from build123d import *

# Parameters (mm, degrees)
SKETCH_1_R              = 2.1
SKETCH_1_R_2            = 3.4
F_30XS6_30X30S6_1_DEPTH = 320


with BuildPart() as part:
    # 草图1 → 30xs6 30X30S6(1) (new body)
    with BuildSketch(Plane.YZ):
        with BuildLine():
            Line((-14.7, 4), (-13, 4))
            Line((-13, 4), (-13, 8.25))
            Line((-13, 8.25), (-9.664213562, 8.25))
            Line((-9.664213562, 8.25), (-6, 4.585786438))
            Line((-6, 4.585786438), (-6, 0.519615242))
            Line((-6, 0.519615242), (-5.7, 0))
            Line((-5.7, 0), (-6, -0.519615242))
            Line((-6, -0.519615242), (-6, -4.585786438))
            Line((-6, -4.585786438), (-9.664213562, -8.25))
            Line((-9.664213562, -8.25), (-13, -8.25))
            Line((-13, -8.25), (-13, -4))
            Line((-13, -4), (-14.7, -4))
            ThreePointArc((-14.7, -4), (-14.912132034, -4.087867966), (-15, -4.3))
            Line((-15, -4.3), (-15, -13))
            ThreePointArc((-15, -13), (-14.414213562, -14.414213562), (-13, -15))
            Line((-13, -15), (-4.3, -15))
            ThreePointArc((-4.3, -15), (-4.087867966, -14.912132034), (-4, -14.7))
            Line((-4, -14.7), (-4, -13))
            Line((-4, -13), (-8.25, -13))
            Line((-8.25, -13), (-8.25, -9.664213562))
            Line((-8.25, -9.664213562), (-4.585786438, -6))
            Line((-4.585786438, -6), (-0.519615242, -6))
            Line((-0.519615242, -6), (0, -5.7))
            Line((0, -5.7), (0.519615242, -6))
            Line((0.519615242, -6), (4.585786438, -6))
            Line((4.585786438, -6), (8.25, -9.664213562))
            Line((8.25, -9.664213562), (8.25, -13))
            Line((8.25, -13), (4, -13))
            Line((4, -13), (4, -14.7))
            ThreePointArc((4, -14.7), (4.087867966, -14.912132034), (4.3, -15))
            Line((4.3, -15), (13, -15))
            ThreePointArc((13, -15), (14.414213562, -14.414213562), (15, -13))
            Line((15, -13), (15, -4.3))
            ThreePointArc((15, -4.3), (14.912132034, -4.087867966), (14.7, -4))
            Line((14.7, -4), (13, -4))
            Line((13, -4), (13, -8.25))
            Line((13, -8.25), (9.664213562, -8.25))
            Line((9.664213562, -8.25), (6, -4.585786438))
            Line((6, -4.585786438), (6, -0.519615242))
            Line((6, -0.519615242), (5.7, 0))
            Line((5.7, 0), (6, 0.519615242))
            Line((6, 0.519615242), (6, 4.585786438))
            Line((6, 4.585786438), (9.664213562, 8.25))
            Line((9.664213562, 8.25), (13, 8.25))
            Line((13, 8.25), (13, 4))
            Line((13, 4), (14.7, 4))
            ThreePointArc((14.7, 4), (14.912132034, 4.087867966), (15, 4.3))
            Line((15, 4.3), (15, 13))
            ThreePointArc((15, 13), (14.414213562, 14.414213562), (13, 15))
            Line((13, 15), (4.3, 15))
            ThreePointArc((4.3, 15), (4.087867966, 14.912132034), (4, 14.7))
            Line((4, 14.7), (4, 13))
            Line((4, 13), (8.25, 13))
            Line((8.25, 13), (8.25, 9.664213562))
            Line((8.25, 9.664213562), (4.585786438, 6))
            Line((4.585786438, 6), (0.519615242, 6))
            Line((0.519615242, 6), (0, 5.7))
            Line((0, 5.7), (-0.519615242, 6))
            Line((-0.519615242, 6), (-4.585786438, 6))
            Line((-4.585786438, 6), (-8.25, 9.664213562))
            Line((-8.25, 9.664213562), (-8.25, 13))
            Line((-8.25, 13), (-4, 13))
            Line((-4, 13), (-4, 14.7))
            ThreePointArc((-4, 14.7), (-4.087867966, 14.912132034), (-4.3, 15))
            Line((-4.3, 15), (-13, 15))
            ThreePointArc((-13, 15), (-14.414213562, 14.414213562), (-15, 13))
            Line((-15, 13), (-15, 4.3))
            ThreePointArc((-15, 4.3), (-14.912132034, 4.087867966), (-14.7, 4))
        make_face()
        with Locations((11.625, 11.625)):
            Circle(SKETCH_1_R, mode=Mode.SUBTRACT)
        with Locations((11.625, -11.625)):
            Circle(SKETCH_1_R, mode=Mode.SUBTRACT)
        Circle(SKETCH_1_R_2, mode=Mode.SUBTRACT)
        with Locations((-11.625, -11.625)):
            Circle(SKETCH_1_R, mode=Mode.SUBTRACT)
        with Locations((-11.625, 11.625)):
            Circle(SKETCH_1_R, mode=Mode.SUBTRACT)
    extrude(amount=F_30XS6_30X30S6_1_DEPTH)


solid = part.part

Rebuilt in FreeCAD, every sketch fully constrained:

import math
import FreeCAD as App
import Part
import Sketcher
from FreeCAD import Vector
Q = App.Units.Quantity

doc = App.newDocument("Part")
body = doc.addObject("PartDesign::Body", "Body")

# Sketch on YZ plane
sketch1 = body.newObject("Sketcher::SketchObject", "Sketch")
sketch1.AttachmentSupport = (doc.getObject("YZ_Plane"), [""])
sketch1.MapMode = "FlatFace"
sketch1.addGeometry([
    Part.LineSegment(Vector(-14.7, 4, 0), Vector(-13, 4, 0)),  # 0
    Part.LineSegment(Vector(-13, 4, 0), Vector(-13, 8.25, 0)),  # 1
    Part.LineSegment(Vector(-13, 8.25, 0), Vector(-9.66, 8.25, 0)),  # 2
    Part.LineSegment(Vector(-9.66, 8.25, 0), Vector(-6, 4.59, 0)),  # 3
    Part.LineSegment(Vector(-6, 4.59, 0), Vector(-6, 0.52, 0)),  # 4
    Part.LineSegment(Vector(-6, 0.52, 0), Vector(-5.7, 0, 0)),  # 5
    Part.LineSegment(Vector(-5.7, 0, 0), Vector(-6, -0.52, 0)),  # 6
    Part.LineSegment(Vector(-6, -0.52, 0), Vector(-6, -4.59, 0)),  # 7
    Part.LineSegment(Vector(-6, -4.59, 0), Vector(-9.66, -8.25, 0)),  # 8
    Part.LineSegment(Vector(-9.66, -8.25, 0), Vector(-13, -8.25, 0)),  # 9
    Part.LineSegment(Vector(-13, -8.25, 0), Vector(-13, -4, 0)),  # 10
    Part.LineSegment(Vector(-13, -4, 0), Vector(-14.7, -4, 0)),  # 11
    Part.ArcOfCircle(Part.Circle(Vector(-14.7, -4.3, 0), Vector(0, 0, 1), 0.3), math.radians(90), math.radians(180)),  # 12
    Part.LineSegment(Vector(-15, -4.3, 0), Vector(-15, -13, 0)),  # 13
    Part.ArcOfCircle(Part.Circle(Vector(-13, -13, 0), Vector(0, 0, 1), 2), math.radians(-180), math.radians(-90)),  # 14
    Part.LineSegment(Vector(-13, -15, 0), Vector(-4.3, -15, 0)),  # 15
    Part.ArcOfCircle(Part.Circle(Vector(-4.3, -14.7, 0), Vector(0, 0, 1), 0.3), math.radians(-90), math.radians(0)),  # 16
    Part.LineSegment(Vector(-4, -14.7, 0), Vector(-4, -13, 0)),  # 17
    Part.LineSegment(Vector(-4, -13, 0), Vector(-8.25, -13, 0)),  # 18
    Part.LineSegment(Vector(-8.25, -13, 0), Vector(-8.25, -9.66, 0)),  # 19
    Part.LineSegment(Vector(-8.25, -9.66, 0), Vector(-4.59, -6, 0)),  # 20
    Part.LineSegment(Vector(-4.59, -6, 0), Vector(-0.52, -6, 0)),  # 21
    Part.LineSegment(Vector(-0.52, -6, 0), Vector(0, -5.7, 0)),  # 22
    Part.LineSegment(Vector(0, -5.7, 0), Vector(0.52, -6, 0)),  # 23
    Part.LineSegment(Vector(0.52, -6, 0), Vector(4.59, -6, 0)),  # 24
    Part.LineSegment(Vector(4.59, -6, 0), Vector(8.25, -9.66, 0)),  # 25
    Part.LineSegment(Vector(8.25, -9.66, 0), Vector(8.25, -13, 0)),  # 26
    Part.LineSegment(Vector(8.25, -13, 0), Vector(4, -13, 0)),  # 27
    Part.LineSegment(Vector(4, -13, 0), Vector(4, -14.7, 0)),  # 28
    Part.ArcOfCircle(Part.Circle(Vector(4.3, -14.7, 0), Vector(0, 0, 1), 0.3), math.radians(-180), math.radians(-90)),  # 29
    Part.LineSegment(Vector(4.3, -15, 0), Vector(13, -15, 0)),  # 30
    Part.ArcOfCircle(Part.Circle(Vector(13, -13, 0), Vector(0, 0, 1), 2), math.radians(-90), math.radians(0)),  # 31
    Part.LineSegment(Vector(15, -13, 0), Vector(15, -4.3, 0)),  # 32
    Part.ArcOfCircle(Part.Circle(Vector(14.7, -4.3, 0), Vector(0, 0, 1), 0.3), math.radians(0), math.radians(90)),  # 33
    Part.LineSegment(Vector(14.7, -4, 0), Vector(13, -4, 0)),  # 34
    Part.LineSegment(Vector(13, -4, 0), Vector(13, -8.25, 0)),  # 35
    Part.LineSegment(Vector(13, -8.25, 0), Vector(9.66, -8.25, 0)),  # 36
    Part.LineSegment(Vector(9.66, -8.25, 0), Vector(6, -4.59, 0)),  # 37
    Part.LineSegment(Vector(6, -4.59, 0), Vector(6, -0.52, 0)),  # 38
    Part.LineSegment(Vector(6, -0.52, 0), Vector(5.7, 0, 0)),  # 39
    Part.LineSegment(Vector(5.7, 0, 0), Vector(6, 0.52, 0)),  # 40
    Part.LineSegment(Vector(6, 0.52, 0), Vector(6, 4.59, 0)),  # 41
    Part.LineSegment(Vector(6, 4.59, 0), Vector(9.66, 8.25, 0)),  # 42
    Part.LineSegment(Vector(9.66, 8.25, 0), Vector(13, 8.25, 0)),  # 43
    Part.LineSegment(Vector(13, 8.25, 0), Vector(13, 4, 0)),  # 44
    Part.LineSegment(Vector(13, 4, 0), Vector(14.7, 4, 0)),  # 45
    Part.ArcOfCircle(Part.Circle(Vector(14.7, 4.3, 0), Vector(0, 0, 1), 0.3), math.radians(-90), math.radians(0)),  # 46
    Part.LineSegment(Vector(15, 4.3, 0), Vector(15, 13, 0)),  # 47
    Part.ArcOfCircle(Part.Circle(Vector(13, 13, 0), Vector(0, 0, 1), 2), math.radians(0), math.radians(90)),  # 48
    Part.LineSegment(Vector(13, 15, 0), Vector(4.3, 15, 0)),  # 49
    Part.ArcOfCircle(Part.Circle(Vector(4.3, 14.7, 0), Vector(0, 0, 1), 0.3), math.radians(90), math.radians(180)),  # 50
    Part.LineSegment(Vector(4, 14.7, 0), Vector(4, 13, 0)),  # 51
    Part.LineSegment(Vector(4, 13, 0), Vector(8.25, 13, 0)),  # 52
    Part.LineSegment(Vector(8.25, 13, 0), Vector(8.25, 9.66, 0)),  # 53
    Part.LineSegment(Vector(8.25, 9.66, 0), Vector(4.59, 6, 0)),  # 54
    Part.LineSegment(Vector(4.59, 6, 0), Vector(0.52, 6, 0)),  # 55
    Part.LineSegment(Vector(0.52, 6, 0), Vector(0, 5.7, 0)),  # 56
    Part.LineSegment(Vector(0, 5.7, 0), Vector(-0.52, 6, 0)),  # 57
    Part.LineSegment(Vector(-0.52, 6, 0), Vector(-4.59, 6, 0)),  # 58
    Part.LineSegment(Vector(-4.59, 6, 0), Vector(-8.25, 9.66, 0)),  # 59
    Part.LineSegment(Vector(-8.25, 9.66, 0), Vector(-8.25, 13, 0)),  # 60
    Part.LineSegment(Vector(-8.25, 13, 0), Vector(-4, 13, 0)),  # 61
    Part.LineSegment(Vector(-4, 13, 0), Vector(-4, 14.7, 0)),  # 62
    Part.ArcOfCircle(Part.Circle(Vector(-4.3, 14.7, 0), Vector(0, 0, 1), 0.3), math.radians(0), math.radians(90)),  # 63
    Part.LineSegment(Vector(-4.3, 15, 0), Vector(-13, 15, 0)),  # 64
    Part.ArcOfCircle(Part.Circle(Vector(-13, 13, 0), Vector(0, 0, 1), 2), math.radians(90), math.radians(180)),  # 65
    Part.LineSegment(Vector(-15, 13, 0), Vector(-15, 4.3, 0)),  # 66
    Part.ArcOfCircle(Part.Circle(Vector(-14.7, 4.3, 0), Vector(0, 0, 1), 0.3), math.radians(-180), math.radians(-90)),  # 67
    Part.Circle(Vector(-11.62, -11.62, 0), Vector(0, 0, 1), 2.1),  # 68
    Part.Circle(Vector(11.62, -11.62, 0), Vector(0, 0, 1), 2.1),  # 69
    Part.Circle(Vector(-11.62, 11.62, 0), Vector(0, 0, 1), 2.1),  # 70
    Part.Circle(Vector(0, 0, 0), Vector(0, 0, 1), 3.4),  # 71
    Part.Circle(Vector(11.62, 11.62, 0), Vector(0, 0, 1), 2.1),  # 72
], False)
sketch1.addConstraint([
    Sketcher.Constraint("Coincident", 0, 2, 1, 1),
    Sketcher.Constraint("Coincident", 1, 2, 2, 1),
    Sketcher.Constraint("Coincident", 2, 2, 3, 1),
    Sketcher.Constraint("Coincident", 3, 2, 4, 1),
    Sketcher.Constraint("Coincident", 4, 2, 5, 1),
    Sketcher.Constraint("Coincident", 5, 2, 6, 1),
    Sketcher.Constraint("Coincident", 6, 2, 7, 1),
    Sketcher.Constraint("Coincident", 7, 2, 8, 1),
    Sketcher.Constraint("Coincident", 8, 2, 9, 1),
    Sketcher.Constraint("Coincident", 9, 2, 10, 1),
    Sketcher.Constraint("Coincident", 10, 2, 11, 1),
    Sketcher.Constraint("Tangent", 11, 2, 12, 1),
    Sketcher.Constraint("Tangent", 12, 2, 13, 1),
    Sketcher.Constraint("Tangent", 13, 2, 14, 1),
    Sketcher.Constraint("Tangent", 14, 2, 15, 1),
    Sketcher.Constraint("Tangent", 15, 2, 16, 1),
    Sketcher.Constraint("Tangent", 16, 2, 17, 1),
    Sketcher.Constraint("Coincident", 17, 2, 18, 1),
    Sketcher.Constraint("Coincident", 18, 2, 19, 1),
    Sketcher.Constraint("Coincident", 19, 2, 20, 1),
    Sketcher.Constraint("Coincident", 20, 2, 21, 1),
    Sketcher.Constraint("Coincident", 21, 2, 22, 1),
    Sketcher.Constraint("Coincident", 22, 2, 23, 1),
    Sketcher.Constraint("Coincident", 23, 2, 24, 1),
    Sketcher.Constraint("Coincident", 24, 2, 25, 1),
    Sketcher.Constraint("Coincident", 25, 2, 26, 1),
    Sketcher.Constraint("Coincident", 26, 2, 27, 1),
    Sketcher.Constraint("Coincident", 27, 2, 28, 1),
    Sketcher.Constraint("Tangent", 28, 2, 29, 1),
    Sketcher.Constraint("Tangent", 29, 2, 30, 1),
    Sketcher.Constraint("Tangent", 30, 2, 31, 1),
    Sketcher.Constraint("Tangent", 31, 2, 32, 1),
    Sketcher.Constraint("Tangent", 32, 2, 33, 1),
    Sketcher.Constraint("Tangent", 33, 2, 34, 1),
    Sketcher.Constraint("Coincident", 34, 2, 35, 1),
    Sketcher.Constraint("Coincident", 35, 2, 36, 1),
    Sketcher.Constraint("Coincident", 36, 2, 37, 1),
    Sketcher.Constraint("Coincident", 37, 2, 38, 1),
    Sketcher.Constraint("Coincident", 38, 2, 39, 1),
    Sketcher.Constraint("Coincident", 39, 2, 40, 1),
    Sketcher.Constraint("Coincident", 40, 2, 41, 1),
    Sketcher.Constraint("Coincident", 41, 2, 42, 1),
    Sketcher.Constraint("Coincident", 42, 2, 43, 1),
    Sketcher.Constraint("Coincident", 43, 2, 44, 1),
    Sketcher.Constraint("Coincident", 44, 2, 45, 1),
    Sketcher.Constraint("Tangent", 45, 2, 46, 1),
    Sketcher.Constraint("Tangent", 46, 2, 47, 1),
    Sketcher.Constraint("Tangent", 47, 2, 48, 1),
    Sketcher.Constraint("Tangent", 48, 2, 49, 1),
    Sketcher.Constraint("Tangent", 49, 2, 50, 1),
    Sketcher.Constraint("Tangent", 50, 2, 51, 1),
    Sketcher.Constraint("Coincident", 51, 2, 52, 1),
    Sketcher.Constraint("Coincident", 52, 2, 53, 1),
    Sketcher.Constraint("Coincident", 53, 2, 54, 1),
    Sketcher.Constraint("Coincident", 54, 2, 55, 1),
    Sketcher.Constraint("Coincident", 55, 2, 56, 1),
    Sketcher.Constraint("Coincident", 56, 2, 57, 1),
    Sketcher.Constraint("Coincident", 57, 2, 58, 1),
    Sketcher.Constraint("Coincident", 58, 2, 59, 1),
    Sketcher.Constraint("Coincident", 59, 2, 60, 1),
    Sketcher.Constraint("Coincident", 60, 2, 61, 1),
    Sketcher.Constraint("Coincident", 61, 2, 62, 1),
    Sketcher.Constraint("Tangent", 62, 2, 63, 1),
    Sketcher.Constraint("Tangent", 63, 2, 64, 1),
    Sketcher.Constraint("Tangent", 64, 2, 65, 1),
    Sketcher.Constraint("Tangent", 65, 2, 66, 1),
    Sketcher.Constraint("Tangent", 66, 2, 67, 1),
    Sketcher.Constraint("Tangent", 67, 2, 0, 1),
    Sketcher.Constraint("Horizontal", 0),
    Sketcher.Constraint("Vertical", 1),
    Sketcher.Constraint("Horizontal", 2),
    Sketcher.Constraint("Vertical", 4),
    Sketcher.Constraint("Vertical", 7),
    Sketcher.Constraint("Horizontal", 9),
    Sketcher.Constraint("Vertical", 10),
    Sketcher.Constraint("Horizontal", 11),
    Sketcher.Constraint("Vertical", 13),
    Sketcher.Constraint("Horizontal", 15),
    Sketcher.Constraint("Vertical", 17),
    Sketcher.Constraint("Horizontal", 18),
    Sketcher.Constraint("Vertical", 19),
    Sketcher.Constraint("Horizontal", 21),
    Sketcher.Constraint("Horizontal", 24),
    Sketcher.Constraint("Vertical", 26),
    Sketcher.Constraint("Horizontal", 27),
    Sketcher.Constraint("Vertical", 28),
    Sketcher.Constraint("Horizontal", 30),
    Sketcher.Constraint("Vertical", 32),
    Sketcher.Constraint("Horizontal", 34),
    Sketcher.Constraint("Vertical", 35),
    Sketcher.Constraint("Horizontal", 36),
    Sketcher.Constraint("Vertical", 38),
    Sketcher.Constraint("Vertical", 41),
    Sketcher.Constraint("Horizontal", 43),
    Sketcher.Constraint("Vertical", 44),
    Sketcher.Constraint("Horizontal", 45),
    Sketcher.Constraint("Vertical", 47),
    Sketcher.Constraint("Horizontal", 49),
    Sketcher.Constraint("Vertical", 51),
    Sketcher.Constraint("Horizontal", 52),
    Sketcher.Constraint("Vertical", 53),
    Sketcher.Constraint("Horizontal", 55),
    Sketcher.Constraint("Horizontal", 58),
    Sketcher.Constraint("Vertical", 60),
    Sketcher.Constraint("Horizontal", 61),
    Sketcher.Constraint("Vertical", 62),
    Sketcher.Constraint("Horizontal", 64),
    Sketcher.Constraint("Vertical", 66),
    Sketcher.Constraint("Coincident", 71, 3, -1, 1),
    Sketcher.Constraint("Equal", 12, 16),
    Sketcher.Constraint("Equal", 16, 29),
    Sketcher.Constraint("Equal", 14, 31),
    Sketcher.Constraint("Equal", 29, 33),
    Sketcher.Constraint("Equal", 33, 46),
    Sketcher.Constraint("Equal", 31, 48),
    Sketcher.Constraint("Equal", 46, 50),
    Sketcher.Constraint("Equal", 50, 63),
    Sketcher.Constraint("Equal", 48, 65),
    Sketcher.Constraint("Equal", 63, 67),
    Sketcher.Constraint("Equal", 68, 69),
    Sketcher.Constraint("Equal", 69, 70),
    Sketcher.Constraint("Equal", 70, 72),
    Sketcher.Constraint("Symmetric", 12, 3, 46, 3, -1, 1),
    Sketcher.Constraint("Symmetric", 16, 3, 50, 3, -1, 1),
    Sketcher.Constraint("Symmetric", 29, 3, 63, 3, -1, 1),
    Sketcher.Constraint("Symmetric", 33, 3, 67, 3, -1, 1),
    Sketcher.Constraint("Symmetric", 69, 3, 70, 3, -1, 1),
    Sketcher.Constraint("Symmetric", 68, 3, 72, 3, -1, 1),
    Sketcher.Constraint("Symmetric", 1, 2, 35, 2, -1, 1),
    Sketcher.Constraint("Symmetric", 3, 2, 37, 2, -1, 1),
    Sketcher.Constraint("Symmetric", 5, 2, 39, 2, -1, 1),
    Sketcher.Constraint("Symmetric", 6, 2, 40, 2, -1, 1),
    Sketcher.Constraint("Symmetric", 8, 2, 42, 2, -1, 1),
    Sketcher.Constraint("Symmetric", 18, 2, 52, 2, -1, 1),
    Sketcher.Constraint("Symmetric", 20, 2, 54, 2, -1, 1),
    Sketcher.Constraint("Symmetric", 22, 2, 56, 2, -1, 1),
    Sketcher.Constraint("Symmetric", 23, 2, 57, 2, -1, 1),
    Sketcher.Constraint("Symmetric", 25, 2, 59, 2, -1, 1),
    Sketcher.Constraint("Symmetric", 16, 3, 29, 3, -2),
    Sketcher.Constraint("Symmetric", 12, 3, 33, 3, -2),
    Sketcher.Constraint("Symmetric", 68, 3, 69, 3, -2),
    Sketcher.Constraint("Symmetric", 21, 2, 23, 2, -2),
    Sketcher.Constraint("Symmetric", 19, 2, 25, 2, -2),
    Sketcher.Constraint("Symmetric", 9, 2, 35, 2, -2),
    Sketcher.Constraint("Symmetric", 7, 2, 37, 2, -2),
    Sketcher.Constraint("PointOnObject", 5, 2, -1),
    Sketcher.Constraint("PointOnObject", 22, 2, -2),
    Sketcher.Constraint("Perpendicular", 3, 8),
    Sketcher.Constraint("Parallel", 8, 20),
    Sketcher.Constraint("Perpendicular", 5, 22),
    Sketcher.Constraint("Perpendicular", 6, 23),
    Sketcher.Constraint("Perpendicular", 20, 25),
    Sketcher.Constraint("Parallel", 25, 37),
    Sketcher.Constraint("Perpendicular", 22, 39),
    Sketcher.Constraint("Perpendicular", 37, 42),
    Sketcher.Constraint("Parallel", 42, 54),
    Sketcher.Constraint("Perpendicular", 39, 56),
    Sketcher.Constraint("Perpendicular", 54, 59),
    Sketcher.Constraint("Horizontal", 13, 2, 17, 2),
    Sketcher.Constraint("Horizontal", 18, 2, 26, 2),
    Sketcher.Constraint("Horizontal", 52, 2, 60, 2),
    Sketcher.Constraint("Vertical", 65, 3, 0, 2),
    Sketcher.Constraint("Vertical", 2, 2, 8, 2),
    Sketcher.Constraint("Vertical", 35, 2, 43, 2),
    Sketcher.Constraint("Equal", 61, 1),
    Sketcher.Constraint("Equal", 58, 4),
    Sketcher.Constraint("Equal", 64, 13),
    Sketcher.Constraint("Equal", 43, 19),
    Sketcher.Constraint("Equal", 8, 20),
    Sketcher.Constraint("Equal", 6, 22),
    Sketcher.Constraint("Radius", 14, Q("2 mm")),
    Sketcher.Constraint("Diameter", 68, Q("4.2 mm")),
    Sketcher.Constraint("Diameter", 71, Q("6.8 mm")),
    Sketcher.Constraint("Radius", 12, Q("0.3 mm")),
    Sketcher.Constraint("Angle", 5, Q("-60 deg")),
    Sketcher.Constraint("DistanceX", 15, 1, 15, 2, Q("8.7 mm")),
    Sketcher.Constraint("DistanceX", 14, 3, -1, 1, Q("13 mm")),
    Sketcher.Constraint("DistanceX", 3, 2, -1, 1, Q("6 mm")),
    Sketcher.Constraint("Distance", 5, Q("0.6 mm")),
    Sketcher.Constraint("DistanceX", 18, 2, 18, 1, Q("4.25 mm")),
    Sketcher.Constraint("DistanceX", 68, 3, -1, 1, Q("11.625 mm")),
    Sketcher.Constraint("DistanceY", 68, 3, -1, 1, Q("11.625 mm")),
    Sketcher.Constraint("DistanceX", 21, 1, 21, 2, Q("4.066171 mm")),
])
pad1 = body.newObject("PartDesign::Pad", "Pad")
pad1.Profile = sketch1
pad1.Length = 320

doc.recompute()
